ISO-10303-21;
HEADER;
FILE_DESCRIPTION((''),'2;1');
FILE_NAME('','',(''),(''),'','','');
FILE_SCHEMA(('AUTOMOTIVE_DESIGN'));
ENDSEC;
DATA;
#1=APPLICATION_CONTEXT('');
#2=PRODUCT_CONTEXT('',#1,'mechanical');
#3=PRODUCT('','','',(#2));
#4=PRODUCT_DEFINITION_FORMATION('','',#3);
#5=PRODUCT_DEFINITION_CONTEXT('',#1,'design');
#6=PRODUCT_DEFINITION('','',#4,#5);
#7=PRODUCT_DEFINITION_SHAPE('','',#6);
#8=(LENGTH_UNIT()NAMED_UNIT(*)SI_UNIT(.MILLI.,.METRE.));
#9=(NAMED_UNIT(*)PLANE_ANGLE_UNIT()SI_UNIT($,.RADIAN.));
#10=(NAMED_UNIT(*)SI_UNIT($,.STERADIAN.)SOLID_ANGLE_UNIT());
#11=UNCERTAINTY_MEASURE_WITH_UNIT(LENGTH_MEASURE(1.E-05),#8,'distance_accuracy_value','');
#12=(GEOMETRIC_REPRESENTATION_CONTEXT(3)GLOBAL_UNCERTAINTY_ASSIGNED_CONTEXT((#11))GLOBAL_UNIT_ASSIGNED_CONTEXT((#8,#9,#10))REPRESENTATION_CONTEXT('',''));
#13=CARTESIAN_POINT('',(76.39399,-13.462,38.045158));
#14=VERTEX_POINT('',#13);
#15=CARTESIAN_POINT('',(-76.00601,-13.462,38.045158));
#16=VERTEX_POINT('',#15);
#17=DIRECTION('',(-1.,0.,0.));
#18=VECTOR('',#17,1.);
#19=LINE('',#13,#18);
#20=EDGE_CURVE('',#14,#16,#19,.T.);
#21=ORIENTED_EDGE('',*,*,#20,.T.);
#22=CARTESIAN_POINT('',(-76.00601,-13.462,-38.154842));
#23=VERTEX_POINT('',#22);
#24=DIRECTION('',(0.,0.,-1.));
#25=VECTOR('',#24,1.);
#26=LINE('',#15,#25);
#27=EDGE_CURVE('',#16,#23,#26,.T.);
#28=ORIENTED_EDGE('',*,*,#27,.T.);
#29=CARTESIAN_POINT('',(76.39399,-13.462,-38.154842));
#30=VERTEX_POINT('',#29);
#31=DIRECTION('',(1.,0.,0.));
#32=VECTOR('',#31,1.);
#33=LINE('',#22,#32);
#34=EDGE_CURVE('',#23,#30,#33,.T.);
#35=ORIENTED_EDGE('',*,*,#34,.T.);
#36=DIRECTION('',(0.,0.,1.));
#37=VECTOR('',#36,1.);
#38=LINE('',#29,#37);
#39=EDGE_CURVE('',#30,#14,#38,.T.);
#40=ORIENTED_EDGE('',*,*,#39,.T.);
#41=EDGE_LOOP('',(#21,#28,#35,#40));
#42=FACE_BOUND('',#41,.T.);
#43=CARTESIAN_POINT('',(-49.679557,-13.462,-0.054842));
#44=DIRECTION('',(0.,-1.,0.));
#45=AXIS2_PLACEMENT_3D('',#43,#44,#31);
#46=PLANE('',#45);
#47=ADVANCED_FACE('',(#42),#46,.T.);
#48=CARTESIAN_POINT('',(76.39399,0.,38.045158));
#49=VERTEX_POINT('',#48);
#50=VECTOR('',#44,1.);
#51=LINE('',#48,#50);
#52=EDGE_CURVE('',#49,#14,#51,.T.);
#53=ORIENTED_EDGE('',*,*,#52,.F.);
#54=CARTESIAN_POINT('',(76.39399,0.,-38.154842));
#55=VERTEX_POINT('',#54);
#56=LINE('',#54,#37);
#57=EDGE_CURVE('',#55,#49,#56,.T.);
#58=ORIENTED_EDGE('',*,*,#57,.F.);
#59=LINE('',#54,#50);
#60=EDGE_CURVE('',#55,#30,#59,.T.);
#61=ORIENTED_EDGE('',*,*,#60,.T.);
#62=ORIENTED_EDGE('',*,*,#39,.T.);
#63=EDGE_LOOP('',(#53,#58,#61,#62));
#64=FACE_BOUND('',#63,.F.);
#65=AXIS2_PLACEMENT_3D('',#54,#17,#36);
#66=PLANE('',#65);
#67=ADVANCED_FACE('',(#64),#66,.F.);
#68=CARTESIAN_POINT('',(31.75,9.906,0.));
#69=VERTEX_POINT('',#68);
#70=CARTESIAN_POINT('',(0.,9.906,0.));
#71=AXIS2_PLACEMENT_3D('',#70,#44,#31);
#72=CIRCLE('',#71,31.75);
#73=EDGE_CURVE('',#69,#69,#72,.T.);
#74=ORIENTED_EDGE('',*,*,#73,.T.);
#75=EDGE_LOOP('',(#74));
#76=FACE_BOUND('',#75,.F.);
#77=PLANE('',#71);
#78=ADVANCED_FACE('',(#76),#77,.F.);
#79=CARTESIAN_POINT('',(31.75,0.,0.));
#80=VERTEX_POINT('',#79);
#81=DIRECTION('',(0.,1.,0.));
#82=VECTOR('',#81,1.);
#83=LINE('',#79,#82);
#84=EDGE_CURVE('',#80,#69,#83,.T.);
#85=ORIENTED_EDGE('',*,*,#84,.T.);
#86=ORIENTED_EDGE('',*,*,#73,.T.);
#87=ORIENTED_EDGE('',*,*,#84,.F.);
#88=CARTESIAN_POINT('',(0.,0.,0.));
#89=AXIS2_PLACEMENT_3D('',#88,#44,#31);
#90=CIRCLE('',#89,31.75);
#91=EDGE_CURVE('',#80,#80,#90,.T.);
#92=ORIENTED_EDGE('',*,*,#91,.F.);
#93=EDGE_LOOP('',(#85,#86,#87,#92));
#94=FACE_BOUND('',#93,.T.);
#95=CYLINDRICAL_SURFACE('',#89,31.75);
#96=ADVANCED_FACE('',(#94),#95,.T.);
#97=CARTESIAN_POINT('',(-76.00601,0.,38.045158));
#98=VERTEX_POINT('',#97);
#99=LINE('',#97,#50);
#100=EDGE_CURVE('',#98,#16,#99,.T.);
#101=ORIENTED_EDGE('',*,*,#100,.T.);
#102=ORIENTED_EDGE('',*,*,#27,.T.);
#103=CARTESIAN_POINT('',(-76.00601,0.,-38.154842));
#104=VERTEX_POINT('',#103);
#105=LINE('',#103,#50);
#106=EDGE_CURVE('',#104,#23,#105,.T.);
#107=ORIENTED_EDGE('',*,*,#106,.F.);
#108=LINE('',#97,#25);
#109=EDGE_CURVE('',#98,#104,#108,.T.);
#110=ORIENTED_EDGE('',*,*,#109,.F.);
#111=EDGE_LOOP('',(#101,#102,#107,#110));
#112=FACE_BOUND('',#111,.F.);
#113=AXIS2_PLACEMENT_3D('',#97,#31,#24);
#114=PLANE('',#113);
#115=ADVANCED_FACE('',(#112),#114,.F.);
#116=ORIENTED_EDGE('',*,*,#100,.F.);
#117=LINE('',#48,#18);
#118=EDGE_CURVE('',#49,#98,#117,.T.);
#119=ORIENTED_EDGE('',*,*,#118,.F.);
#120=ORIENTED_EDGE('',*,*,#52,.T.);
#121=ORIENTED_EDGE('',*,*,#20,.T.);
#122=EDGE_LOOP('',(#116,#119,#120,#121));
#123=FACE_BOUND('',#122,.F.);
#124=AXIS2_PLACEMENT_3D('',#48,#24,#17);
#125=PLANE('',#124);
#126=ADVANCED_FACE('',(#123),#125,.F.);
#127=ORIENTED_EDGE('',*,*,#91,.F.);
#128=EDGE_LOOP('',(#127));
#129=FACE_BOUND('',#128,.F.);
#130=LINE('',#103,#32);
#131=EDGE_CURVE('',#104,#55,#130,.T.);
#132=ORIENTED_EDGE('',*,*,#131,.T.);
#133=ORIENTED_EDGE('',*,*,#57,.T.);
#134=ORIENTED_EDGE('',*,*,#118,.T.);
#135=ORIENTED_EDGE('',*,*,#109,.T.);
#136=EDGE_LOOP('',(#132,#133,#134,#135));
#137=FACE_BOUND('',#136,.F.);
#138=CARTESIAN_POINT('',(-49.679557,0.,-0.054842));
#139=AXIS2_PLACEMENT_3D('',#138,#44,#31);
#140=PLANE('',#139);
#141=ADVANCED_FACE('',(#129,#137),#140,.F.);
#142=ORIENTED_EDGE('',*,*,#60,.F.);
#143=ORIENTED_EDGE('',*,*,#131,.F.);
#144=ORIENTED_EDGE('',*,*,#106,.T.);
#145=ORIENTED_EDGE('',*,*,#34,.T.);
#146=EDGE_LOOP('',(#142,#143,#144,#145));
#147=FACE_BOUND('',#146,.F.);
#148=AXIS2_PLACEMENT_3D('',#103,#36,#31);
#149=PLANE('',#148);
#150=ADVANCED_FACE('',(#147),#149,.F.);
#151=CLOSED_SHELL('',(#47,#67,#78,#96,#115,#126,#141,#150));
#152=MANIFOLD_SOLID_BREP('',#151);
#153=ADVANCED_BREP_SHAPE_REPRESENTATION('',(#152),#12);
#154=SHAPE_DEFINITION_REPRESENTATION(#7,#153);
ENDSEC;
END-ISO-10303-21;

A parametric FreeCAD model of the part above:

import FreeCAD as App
import Part
import Sketcher
Q = App.Units.Quantity


def add_polygon(sketch, points):
    """Adds a closed chain of lines whose ends are joined by coincident constraints."""
    first, n = sketch.GeometryCount, len(points)
    for a, b in zip(points, points[1:] + points[:1]):
        sketch.addGeometry(Part.LineSegment(App.Vector(*a, 0), App.Vector(*b, 0)), False)
    for i in range(n):
        sketch.addConstraint(Sketcher.Constraint("Coincident", first + i, 2, first + (i + 1) % n, 1))

doc = App.newDocument("Part")
body = doc.addObject("PartDesign::Body", "Body")

# Sketch on XZ plane
sketch1 = doc.addObject("Sketcher::SketchObject", "Sketch")
body.addObject(sketch1)
sketch1.AttachmentSupport = (doc.XZ_Plane, [""])
sketch1.MapMode = "FlatFace"
add_polygon(sketch1, [(-76, 38), (-76, -38), (76, -38), (76, 38)])  # lines 0-3
sketch1.addConstraint(Sketcher.Constraint("Vertical", 0))
sketch1.addConstraint(Sketcher.Constraint("Horizontal", 1))
sketch1.addConstraint(Sketcher.Constraint("Vertical", 2))
sketch1.addConstraint(Sketcher.Constraint("Horizontal", 3))
sketch1.addConstraint(Sketcher.Constraint("DistanceX", 1, 1, 1, 2, Q("6 in")))
sketch1.addConstraint(Sketcher.Constraint("DistanceY", 0, 2, 0, 1, Q("3 in")))
sketch1.addConstraint(Sketcher.Constraint("DistanceX", 0, 2, -1, 1, Q("76.00601 mm")))
sketch1.addConstraint(Sketcher.Constraint("DistanceY", 0, 2, -1, 1, Q("38.154842 mm")))
pad1 = doc.addObject("PartDesign::Pad", "Pad")
body.addObject(pad1)
pad1.Profile = sketch1
pad1.Length = Q("0.53 in")

# Sketch on XZ plane
sketch2 = doc.addObject("Sketcher::SketchObject", "Sketch001")
body.addObject(sketch2)
sketch2.AttachmentSupport = (doc.XZ_Plane, [""])
sketch2.MapMode = "FlatFace"
sketch2.addGeometry(Part.Circle(App.Vector(0, 0, 0), App.Vector(0, 0, 1), 32), False)
sketch2.addConstraint(Sketcher.Constraint("Coincident", 0, 3, -1, 1))
sketch2.addConstraint(Sketcher.Constraint("Diameter", 0, Q("2.5 in")))
pad2 = doc.addObject("PartDesign::Pad", "Pad001")
body.addObject(pad2)
pad2.Profile = sketch2
pad2.Length = Q("0.39 in")
pad2.Reversed = True

doc.recompute()
